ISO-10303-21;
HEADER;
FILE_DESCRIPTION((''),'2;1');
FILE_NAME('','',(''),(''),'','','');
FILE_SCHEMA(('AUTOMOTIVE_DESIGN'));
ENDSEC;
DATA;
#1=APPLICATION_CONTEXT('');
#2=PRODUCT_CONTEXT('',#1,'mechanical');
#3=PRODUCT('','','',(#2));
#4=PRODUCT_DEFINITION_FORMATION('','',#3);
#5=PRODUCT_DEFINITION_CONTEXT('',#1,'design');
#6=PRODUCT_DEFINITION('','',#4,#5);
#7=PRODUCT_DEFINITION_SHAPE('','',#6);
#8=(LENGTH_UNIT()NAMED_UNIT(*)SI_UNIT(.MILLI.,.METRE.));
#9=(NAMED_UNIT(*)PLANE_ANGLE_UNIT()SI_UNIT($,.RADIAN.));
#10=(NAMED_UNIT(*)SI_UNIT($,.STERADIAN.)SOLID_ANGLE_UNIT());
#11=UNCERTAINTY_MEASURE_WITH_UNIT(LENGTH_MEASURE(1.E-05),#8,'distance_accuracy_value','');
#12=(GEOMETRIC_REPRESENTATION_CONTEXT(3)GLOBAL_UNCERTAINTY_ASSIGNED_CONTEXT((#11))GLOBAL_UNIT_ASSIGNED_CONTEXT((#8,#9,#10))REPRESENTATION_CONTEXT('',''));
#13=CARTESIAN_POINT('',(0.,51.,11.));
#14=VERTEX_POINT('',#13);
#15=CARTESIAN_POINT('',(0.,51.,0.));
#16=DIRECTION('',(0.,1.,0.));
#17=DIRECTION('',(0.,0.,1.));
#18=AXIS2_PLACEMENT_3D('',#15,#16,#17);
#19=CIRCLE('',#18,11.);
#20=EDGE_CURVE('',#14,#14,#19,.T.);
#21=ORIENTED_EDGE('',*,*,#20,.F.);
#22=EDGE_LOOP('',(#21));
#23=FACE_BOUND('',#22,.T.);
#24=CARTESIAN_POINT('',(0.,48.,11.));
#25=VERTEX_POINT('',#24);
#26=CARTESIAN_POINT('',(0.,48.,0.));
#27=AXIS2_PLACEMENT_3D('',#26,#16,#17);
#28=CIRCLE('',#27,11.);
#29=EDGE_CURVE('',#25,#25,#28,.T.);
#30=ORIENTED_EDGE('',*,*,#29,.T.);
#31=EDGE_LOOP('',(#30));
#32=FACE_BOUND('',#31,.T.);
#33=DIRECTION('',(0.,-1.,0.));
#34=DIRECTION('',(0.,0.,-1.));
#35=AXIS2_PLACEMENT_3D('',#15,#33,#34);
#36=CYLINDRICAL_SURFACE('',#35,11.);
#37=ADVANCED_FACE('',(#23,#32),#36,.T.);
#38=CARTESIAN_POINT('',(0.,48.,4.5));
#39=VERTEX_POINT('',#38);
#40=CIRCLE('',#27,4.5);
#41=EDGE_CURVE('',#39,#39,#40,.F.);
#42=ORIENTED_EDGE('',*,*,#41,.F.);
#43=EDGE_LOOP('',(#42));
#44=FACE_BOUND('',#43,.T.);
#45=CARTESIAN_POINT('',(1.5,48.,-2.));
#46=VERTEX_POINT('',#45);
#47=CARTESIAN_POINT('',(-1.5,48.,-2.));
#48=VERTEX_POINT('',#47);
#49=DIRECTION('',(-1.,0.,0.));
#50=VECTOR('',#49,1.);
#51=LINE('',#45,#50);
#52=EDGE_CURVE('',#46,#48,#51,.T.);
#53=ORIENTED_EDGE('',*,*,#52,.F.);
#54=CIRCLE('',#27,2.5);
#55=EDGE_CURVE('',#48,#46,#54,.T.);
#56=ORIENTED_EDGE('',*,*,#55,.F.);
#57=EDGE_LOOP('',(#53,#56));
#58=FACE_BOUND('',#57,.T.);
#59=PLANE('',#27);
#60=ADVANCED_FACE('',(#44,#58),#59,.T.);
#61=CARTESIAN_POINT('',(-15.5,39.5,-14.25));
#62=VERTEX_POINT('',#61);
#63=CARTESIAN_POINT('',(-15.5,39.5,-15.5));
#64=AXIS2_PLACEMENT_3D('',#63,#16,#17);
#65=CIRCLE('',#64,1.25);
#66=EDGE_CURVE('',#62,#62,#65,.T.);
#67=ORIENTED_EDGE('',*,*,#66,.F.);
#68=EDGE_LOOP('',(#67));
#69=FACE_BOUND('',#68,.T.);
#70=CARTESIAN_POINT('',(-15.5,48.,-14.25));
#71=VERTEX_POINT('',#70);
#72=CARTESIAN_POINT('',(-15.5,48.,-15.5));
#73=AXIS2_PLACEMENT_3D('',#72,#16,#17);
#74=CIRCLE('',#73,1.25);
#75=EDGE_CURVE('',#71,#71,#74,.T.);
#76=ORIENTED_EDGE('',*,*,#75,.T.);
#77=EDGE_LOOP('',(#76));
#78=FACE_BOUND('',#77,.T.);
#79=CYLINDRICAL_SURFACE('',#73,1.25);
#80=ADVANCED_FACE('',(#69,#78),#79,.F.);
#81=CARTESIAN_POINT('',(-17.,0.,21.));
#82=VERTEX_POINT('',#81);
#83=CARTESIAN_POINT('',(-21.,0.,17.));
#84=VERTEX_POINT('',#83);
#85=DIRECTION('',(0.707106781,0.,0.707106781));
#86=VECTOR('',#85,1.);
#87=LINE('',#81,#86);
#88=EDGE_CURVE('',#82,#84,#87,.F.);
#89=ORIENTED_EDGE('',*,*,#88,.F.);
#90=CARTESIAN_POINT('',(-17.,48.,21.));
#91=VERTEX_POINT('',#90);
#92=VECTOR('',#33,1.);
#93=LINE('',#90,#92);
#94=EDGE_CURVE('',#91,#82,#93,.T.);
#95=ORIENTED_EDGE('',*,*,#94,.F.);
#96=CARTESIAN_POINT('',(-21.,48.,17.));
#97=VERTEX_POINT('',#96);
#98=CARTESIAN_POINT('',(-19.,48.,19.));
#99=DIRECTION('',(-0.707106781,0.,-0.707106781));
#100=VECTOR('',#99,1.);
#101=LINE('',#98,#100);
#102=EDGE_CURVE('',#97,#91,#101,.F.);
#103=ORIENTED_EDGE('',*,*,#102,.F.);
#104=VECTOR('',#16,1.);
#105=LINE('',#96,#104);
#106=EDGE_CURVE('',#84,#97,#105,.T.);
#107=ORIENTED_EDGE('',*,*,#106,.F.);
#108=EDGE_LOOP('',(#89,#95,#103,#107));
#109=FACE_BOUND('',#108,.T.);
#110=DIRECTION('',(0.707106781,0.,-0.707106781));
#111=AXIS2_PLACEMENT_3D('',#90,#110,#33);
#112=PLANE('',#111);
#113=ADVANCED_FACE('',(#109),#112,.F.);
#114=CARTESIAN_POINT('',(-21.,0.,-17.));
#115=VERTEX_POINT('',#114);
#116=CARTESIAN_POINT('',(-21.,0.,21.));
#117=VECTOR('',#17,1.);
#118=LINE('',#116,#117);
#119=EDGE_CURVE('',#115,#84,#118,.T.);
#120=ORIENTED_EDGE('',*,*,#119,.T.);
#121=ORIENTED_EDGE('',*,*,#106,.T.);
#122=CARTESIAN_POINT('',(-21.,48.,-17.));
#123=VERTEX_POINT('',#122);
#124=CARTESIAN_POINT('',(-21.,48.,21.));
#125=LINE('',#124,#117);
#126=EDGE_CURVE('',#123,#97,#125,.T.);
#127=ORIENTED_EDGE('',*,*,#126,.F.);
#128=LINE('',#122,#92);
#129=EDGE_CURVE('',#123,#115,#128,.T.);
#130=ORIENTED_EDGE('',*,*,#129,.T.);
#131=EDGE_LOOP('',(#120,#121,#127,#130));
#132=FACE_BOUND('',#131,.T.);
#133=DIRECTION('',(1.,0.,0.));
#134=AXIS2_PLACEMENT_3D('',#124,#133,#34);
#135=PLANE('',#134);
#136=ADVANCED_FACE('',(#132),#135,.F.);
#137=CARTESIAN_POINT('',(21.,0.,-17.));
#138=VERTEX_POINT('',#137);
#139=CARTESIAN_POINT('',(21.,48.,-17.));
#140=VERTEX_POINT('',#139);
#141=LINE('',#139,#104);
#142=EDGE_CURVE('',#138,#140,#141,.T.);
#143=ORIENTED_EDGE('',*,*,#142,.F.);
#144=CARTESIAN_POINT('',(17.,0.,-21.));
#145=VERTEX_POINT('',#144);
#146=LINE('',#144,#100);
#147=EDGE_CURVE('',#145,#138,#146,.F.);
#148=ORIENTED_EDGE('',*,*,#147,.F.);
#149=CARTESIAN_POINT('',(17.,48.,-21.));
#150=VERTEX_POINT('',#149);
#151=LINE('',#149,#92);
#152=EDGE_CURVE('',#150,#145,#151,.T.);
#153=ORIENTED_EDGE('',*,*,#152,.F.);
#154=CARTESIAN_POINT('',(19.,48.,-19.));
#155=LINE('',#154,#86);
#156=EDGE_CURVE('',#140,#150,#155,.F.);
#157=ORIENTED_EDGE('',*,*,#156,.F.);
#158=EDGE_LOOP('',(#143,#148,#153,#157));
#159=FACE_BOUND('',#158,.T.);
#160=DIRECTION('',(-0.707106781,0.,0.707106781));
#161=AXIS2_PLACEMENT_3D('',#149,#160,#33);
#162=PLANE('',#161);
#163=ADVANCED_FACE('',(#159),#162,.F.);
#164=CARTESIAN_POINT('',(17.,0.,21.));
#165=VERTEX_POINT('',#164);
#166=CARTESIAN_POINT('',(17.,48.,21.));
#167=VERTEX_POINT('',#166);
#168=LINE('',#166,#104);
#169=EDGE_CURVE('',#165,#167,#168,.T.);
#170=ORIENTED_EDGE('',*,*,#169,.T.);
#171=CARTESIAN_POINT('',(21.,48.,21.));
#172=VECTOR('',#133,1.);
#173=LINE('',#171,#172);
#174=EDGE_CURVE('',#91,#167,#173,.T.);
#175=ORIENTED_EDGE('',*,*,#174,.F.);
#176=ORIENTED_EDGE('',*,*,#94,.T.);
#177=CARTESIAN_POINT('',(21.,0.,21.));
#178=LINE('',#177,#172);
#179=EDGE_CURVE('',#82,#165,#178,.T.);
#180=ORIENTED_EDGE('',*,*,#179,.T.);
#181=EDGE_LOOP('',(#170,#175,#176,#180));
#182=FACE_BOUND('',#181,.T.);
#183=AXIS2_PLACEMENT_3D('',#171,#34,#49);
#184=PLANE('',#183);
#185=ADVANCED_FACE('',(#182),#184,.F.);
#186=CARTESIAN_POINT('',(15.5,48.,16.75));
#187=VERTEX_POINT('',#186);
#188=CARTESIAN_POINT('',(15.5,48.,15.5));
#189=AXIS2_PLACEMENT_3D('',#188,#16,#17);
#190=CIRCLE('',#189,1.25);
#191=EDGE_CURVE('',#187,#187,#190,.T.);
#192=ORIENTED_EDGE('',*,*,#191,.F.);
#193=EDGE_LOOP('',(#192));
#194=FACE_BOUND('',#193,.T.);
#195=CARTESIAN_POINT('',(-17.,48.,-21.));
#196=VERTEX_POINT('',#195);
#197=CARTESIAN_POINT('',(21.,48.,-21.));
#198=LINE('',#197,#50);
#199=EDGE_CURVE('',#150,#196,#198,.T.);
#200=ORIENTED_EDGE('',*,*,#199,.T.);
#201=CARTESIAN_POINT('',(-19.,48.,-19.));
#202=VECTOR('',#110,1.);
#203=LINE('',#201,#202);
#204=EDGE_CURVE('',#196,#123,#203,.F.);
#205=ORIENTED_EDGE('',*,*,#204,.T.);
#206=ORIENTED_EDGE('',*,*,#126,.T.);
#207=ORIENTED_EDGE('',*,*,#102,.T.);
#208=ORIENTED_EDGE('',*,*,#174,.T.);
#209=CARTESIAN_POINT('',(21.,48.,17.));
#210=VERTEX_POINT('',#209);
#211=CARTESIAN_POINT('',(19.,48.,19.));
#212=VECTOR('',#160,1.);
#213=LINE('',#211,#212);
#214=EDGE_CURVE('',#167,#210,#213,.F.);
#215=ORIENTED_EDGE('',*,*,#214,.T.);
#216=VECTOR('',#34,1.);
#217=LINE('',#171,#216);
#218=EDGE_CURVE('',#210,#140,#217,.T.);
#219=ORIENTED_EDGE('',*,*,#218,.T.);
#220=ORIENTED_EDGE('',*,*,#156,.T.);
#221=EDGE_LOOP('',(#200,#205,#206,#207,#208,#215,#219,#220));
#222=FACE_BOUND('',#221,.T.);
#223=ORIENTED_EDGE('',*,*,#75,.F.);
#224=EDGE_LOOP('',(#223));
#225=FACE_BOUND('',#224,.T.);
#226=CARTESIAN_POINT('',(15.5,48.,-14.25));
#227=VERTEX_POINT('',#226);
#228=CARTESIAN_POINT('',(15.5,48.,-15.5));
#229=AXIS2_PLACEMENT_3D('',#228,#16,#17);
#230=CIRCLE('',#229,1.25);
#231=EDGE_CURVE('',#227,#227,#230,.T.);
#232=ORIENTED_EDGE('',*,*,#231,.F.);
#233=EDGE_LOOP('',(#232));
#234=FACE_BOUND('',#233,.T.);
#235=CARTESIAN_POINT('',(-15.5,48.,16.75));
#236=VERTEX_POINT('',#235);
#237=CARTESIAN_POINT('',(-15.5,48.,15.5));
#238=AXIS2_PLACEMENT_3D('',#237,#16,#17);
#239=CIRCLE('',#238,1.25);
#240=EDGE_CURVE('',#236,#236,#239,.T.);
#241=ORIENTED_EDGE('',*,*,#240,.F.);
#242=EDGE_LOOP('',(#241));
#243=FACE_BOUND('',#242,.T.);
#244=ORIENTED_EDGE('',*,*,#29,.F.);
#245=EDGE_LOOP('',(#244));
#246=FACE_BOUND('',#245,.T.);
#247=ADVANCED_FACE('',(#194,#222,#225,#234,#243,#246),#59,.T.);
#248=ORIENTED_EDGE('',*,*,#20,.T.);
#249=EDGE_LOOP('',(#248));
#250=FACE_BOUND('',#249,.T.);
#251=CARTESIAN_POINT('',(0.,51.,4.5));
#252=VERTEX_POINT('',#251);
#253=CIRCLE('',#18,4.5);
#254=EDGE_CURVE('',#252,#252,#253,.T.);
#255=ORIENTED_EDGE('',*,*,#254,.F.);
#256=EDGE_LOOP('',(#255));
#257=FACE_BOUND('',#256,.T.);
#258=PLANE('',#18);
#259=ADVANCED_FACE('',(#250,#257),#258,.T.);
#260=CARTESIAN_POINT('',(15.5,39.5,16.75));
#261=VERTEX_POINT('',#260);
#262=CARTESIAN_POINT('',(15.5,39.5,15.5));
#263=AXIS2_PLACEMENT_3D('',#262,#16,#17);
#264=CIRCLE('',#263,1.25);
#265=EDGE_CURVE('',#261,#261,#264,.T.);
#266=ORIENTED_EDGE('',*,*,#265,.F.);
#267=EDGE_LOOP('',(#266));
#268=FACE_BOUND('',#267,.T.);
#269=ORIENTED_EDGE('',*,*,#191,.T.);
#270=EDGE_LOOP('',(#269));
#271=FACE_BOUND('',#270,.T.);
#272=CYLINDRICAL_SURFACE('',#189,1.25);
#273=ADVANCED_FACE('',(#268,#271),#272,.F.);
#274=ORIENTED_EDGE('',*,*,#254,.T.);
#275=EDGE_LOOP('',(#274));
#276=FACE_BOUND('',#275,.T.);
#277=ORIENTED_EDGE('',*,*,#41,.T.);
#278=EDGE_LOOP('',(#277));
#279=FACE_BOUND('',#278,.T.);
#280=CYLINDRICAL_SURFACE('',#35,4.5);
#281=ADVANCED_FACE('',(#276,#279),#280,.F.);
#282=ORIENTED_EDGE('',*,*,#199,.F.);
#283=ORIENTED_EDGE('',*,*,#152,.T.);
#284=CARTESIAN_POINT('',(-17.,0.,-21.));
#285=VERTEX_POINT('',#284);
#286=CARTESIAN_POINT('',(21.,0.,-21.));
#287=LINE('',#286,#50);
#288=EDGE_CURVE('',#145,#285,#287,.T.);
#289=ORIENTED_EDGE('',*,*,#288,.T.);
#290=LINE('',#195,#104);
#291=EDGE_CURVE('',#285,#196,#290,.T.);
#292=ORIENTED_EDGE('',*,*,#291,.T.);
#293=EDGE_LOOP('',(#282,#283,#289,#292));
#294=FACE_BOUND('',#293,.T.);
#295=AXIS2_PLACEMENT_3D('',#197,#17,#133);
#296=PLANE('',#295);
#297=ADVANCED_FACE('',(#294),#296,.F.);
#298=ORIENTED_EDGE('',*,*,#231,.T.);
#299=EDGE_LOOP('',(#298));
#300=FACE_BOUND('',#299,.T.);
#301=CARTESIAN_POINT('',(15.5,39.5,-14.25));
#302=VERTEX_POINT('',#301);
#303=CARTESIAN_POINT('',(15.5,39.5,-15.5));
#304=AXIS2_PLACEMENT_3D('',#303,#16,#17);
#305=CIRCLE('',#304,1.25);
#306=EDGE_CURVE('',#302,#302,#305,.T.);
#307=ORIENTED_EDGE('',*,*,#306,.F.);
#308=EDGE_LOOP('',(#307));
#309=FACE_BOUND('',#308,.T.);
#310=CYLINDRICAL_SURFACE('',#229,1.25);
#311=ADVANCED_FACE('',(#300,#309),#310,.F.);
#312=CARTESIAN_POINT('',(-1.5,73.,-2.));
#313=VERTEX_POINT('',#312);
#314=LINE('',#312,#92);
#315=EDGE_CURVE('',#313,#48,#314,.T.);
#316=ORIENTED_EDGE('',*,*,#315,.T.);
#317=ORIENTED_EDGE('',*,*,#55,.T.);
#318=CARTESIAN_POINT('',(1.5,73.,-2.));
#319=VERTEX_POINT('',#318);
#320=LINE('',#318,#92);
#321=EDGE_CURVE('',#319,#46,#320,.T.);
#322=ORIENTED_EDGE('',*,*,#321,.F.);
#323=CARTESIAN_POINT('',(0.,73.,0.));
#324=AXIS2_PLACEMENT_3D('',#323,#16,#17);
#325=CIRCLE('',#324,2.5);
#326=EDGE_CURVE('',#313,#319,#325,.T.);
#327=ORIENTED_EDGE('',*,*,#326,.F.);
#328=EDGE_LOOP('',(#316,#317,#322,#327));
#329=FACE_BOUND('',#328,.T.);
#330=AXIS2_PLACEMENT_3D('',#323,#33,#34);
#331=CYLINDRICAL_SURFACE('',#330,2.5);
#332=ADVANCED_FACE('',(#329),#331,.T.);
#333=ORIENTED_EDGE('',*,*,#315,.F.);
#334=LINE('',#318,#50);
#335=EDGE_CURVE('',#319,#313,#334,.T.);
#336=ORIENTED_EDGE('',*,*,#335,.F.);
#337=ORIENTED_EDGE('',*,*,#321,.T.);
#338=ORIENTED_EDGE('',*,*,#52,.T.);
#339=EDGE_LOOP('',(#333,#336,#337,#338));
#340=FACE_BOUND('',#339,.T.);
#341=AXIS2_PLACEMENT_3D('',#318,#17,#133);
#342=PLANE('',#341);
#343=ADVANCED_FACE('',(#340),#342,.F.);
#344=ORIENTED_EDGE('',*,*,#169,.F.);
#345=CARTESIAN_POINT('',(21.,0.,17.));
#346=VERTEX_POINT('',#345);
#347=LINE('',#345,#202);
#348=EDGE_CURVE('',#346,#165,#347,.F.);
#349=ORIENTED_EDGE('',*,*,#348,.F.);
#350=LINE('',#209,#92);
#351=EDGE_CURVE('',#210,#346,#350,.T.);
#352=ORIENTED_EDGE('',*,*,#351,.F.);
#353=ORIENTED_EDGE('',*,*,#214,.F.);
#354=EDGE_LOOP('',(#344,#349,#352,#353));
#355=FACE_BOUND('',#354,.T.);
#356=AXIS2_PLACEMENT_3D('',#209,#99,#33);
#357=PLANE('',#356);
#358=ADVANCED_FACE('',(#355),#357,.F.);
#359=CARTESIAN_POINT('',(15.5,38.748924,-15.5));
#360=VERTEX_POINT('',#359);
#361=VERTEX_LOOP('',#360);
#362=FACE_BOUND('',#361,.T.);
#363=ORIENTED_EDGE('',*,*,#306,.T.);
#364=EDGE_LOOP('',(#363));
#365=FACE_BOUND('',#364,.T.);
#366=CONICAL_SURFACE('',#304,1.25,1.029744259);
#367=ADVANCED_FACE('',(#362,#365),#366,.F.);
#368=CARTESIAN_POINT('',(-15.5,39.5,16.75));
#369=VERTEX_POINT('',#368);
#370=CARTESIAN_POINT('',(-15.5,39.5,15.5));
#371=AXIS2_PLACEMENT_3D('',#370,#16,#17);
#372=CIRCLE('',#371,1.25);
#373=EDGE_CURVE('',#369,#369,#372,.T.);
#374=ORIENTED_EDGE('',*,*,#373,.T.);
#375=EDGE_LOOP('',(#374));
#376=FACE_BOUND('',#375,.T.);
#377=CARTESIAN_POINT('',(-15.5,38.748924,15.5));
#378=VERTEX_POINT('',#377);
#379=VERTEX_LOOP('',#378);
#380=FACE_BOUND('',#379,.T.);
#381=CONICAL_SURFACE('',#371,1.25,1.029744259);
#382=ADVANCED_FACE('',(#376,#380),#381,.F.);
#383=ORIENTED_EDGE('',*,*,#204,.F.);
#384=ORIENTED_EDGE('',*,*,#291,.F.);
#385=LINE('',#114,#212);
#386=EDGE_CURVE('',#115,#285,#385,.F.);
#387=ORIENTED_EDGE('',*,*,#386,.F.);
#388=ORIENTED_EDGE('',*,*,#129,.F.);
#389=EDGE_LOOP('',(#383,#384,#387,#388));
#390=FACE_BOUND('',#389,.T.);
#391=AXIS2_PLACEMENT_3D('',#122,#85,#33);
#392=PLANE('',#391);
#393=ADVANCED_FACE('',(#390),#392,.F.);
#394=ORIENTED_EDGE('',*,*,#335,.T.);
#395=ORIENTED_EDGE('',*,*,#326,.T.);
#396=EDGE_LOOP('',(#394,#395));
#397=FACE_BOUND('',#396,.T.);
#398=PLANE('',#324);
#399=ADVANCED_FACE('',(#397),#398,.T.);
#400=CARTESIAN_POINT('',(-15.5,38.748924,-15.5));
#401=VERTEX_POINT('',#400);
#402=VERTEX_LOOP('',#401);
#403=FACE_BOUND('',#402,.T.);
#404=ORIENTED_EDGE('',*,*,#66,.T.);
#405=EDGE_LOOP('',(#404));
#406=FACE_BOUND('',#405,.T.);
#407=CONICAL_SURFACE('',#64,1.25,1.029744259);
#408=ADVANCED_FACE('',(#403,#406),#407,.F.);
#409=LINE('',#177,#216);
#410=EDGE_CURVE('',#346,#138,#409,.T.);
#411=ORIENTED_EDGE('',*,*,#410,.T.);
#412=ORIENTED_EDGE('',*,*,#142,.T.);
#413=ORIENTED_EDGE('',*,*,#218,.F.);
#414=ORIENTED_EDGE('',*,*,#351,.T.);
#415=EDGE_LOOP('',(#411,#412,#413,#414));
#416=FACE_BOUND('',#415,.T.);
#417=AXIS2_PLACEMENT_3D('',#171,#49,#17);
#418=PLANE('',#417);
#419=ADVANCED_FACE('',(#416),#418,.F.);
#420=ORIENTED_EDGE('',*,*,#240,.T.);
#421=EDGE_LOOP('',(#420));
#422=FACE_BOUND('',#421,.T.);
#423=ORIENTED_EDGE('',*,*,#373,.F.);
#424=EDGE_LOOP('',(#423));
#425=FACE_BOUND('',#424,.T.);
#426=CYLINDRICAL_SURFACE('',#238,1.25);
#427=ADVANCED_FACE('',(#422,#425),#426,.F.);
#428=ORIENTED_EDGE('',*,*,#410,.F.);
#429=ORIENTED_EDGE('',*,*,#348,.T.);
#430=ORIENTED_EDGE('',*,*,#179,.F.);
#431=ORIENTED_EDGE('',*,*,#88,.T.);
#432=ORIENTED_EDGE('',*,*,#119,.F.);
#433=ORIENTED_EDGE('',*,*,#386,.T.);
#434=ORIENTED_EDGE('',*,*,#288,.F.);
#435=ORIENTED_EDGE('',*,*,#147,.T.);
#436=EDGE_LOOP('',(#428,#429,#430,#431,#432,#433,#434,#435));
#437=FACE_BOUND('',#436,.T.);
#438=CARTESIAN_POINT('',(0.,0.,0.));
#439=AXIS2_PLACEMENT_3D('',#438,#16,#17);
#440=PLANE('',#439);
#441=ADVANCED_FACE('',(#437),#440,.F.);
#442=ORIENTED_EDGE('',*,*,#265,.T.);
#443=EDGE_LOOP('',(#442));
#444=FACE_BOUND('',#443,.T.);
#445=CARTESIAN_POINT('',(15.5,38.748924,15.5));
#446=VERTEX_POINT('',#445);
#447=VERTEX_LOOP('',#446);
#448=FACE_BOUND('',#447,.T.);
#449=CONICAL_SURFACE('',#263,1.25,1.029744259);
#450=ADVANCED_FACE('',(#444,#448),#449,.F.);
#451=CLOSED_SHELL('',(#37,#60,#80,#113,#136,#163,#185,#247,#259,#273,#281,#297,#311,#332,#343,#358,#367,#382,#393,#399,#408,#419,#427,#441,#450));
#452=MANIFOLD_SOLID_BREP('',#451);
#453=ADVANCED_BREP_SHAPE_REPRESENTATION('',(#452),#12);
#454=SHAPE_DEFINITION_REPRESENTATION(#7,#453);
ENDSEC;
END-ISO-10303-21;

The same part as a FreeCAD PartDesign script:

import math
import FreeCAD as App
import Part
import Sketcher
from FreeCAD import Vector
Q = App.Units.Quantity


def edges_at(feature, points):
    """Names of the edges that pass closest to the given points."""
    edges = feature.Shape.Edges
    near = lambda p: min(range(len(edges)), key=lambda i: edges[i].distToShape(Part.Vertex(*p))[0])
    return sorted({f"Edge{near(p) + 1}" for p in points})


def add_polygon(sketch, points):
    """Adds a closed chain of lines whose ends are joined by coincident constraints."""
    first, n = sketch.GeometryCount, len(points)
    for a, b in zip(points, points[1:] + points[:1]):
        sketch.addGeometry(Part.LineSegment(App.Vector(*a, 0), App.Vector(*b, 0)), False)
    for i in range(n):
        sketch.addConstraint(Sketcher.Constraint("Coincident", first + i, 2, first + (i + 1) % n, 1))

doc = App.newDocument("Part")
body = doc.addObject("PartDesign::Body", "Body")

sketch1 = body.newObject("Sketcher::SketchObject", "Sketch")
sketch1.AttachmentSupport = (doc.getObject("XZ_Plane"), [""])
sketch1.MapMode = "FlatFace"
add_polygon(sketch1, [(-21, -21), (-21, 21), (21, 21), (21, -21)])
sketch1.addConstraint([
    Sketcher.Constraint("Vertical", 0),
    Sketcher.Constraint("Horizontal", 1),
    Sketcher.Constraint("Vertical", 2),
    Sketcher.Constraint("Horizontal", 3),
    Sketcher.Constraint("Symmetric", 0, 2, 2, 2, -1, 1),
    Sketcher.Constraint("Equal", 3, 0),
    Sketcher.Constraint("DistanceX", 1, 1, 1, 2, Q("42 mm")),
])
pad1 = body.newObject("PartDesign::Pad", "Pad")
pad1.Profile = sketch1
pad1.Length = 48
pad1.Reversed = True

sketch2 = body.newObject("Sketcher::SketchObject", "Sketch001")
sketch2.AttachmentSupport = (doc.getObject("XZ_Plane"), [""])
sketch2.MapMode = "FlatFace"
sketch2.AttachmentOffset = App.Placement(Vector(0, 0, -48), App.Rotation())
sketch2.addGeometry([
    Part.Circle(Vector(0, 0, 0), Vector(0, 0, 1), 11),
    Part.Circle(Vector(0, 0, 0), Vector(0, 0, 1), 4.5),
], False)
sketch2.addConstraint([
    Sketcher.Constraint("Coincident", 0, 3, -1, 1),
    Sketcher.Constraint("Coincident", 1, 3, -1, 1),
    Sketcher.Constraint("Diameter", 0, Q("22 mm")),
    Sketcher.Constraint("Diameter", 1, Q("9 mm")),
])
pad2 = body.newObject("PartDesign::Pad", "Pad001")
pad2.Profile = sketch2
pad2.Length = 3
pad2.Reversed = True

sketch3 = body.newObject("Sketcher::SketchObject", "Sketch002")
sketch3.AttachmentSupport = (doc.getObject("XZ_Plane"), [""])
sketch3.MapMode = "FlatFace"
sketch3.AttachmentOffset = App.Placement(Vector(0, 0, -48), App.Rotation())
sketch3.addGeometry([
    Part.LineSegment(Vector(1.5, -2, 0), Vector(-1.5, -2, 0)),
    Part.ArcOfCircle(Part.Circle(Vector(0, 0, 0), Vector(0, 0, 1), 2.5), math.radians(-53.130102), math.radians(233.130102)),
], False)
sketch3.addConstraint([
    Sketcher.Constraint("Coincident", 0, 1, 1, 1),
    Sketcher.Constraint("Coincident", 1, 2, 0, 2),
    Sketcher.Constraint("Horizontal", 0),
    Sketcher.Constraint("Coincident", 1, 3, -1, 1),
    Sketcher.Constraint("Radius", 1, Q("2.5 mm")),
    Sketcher.Constraint("DistanceX", 0, 2, 0, 1, Q("3 mm")),
])
pad3 = body.newObject("PartDesign::Pad", "Pad002")
pad3.Profile = sketch3
pad3.Length = 25
pad3.Reversed = True

sketch4 = body.newObject("Sketcher::SketchObject", "Sketch003")
sketch4.AttachmentSupport = (doc.getObject("XZ_Plane"), [""])
sketch4.MapMode = "FlatFace"
sketch4.AttachmentOffset = App.Placement(Vector(0, 0, -48), App.Rotation())
sketch4.addGeometry([
    Part.Circle(Vector(-15.5, -15.5, 0), Vector(0, 0, 1), 1.25),
    Part.Circle(Vector(-15.5, 15.5, 0), Vector(0, 0, 1), 1.25),
    Part.Circle(Vector(15.5, 15.5, 0), Vector(0, 0, 1), 1.25),
    Part.Circle(Vector(15.5, -15.5, 0), Vector(0, 0, 1), 1.25),
], False)
sketch4.addConstraint([
    Sketcher.Constraint("Equal", 0, 1),
    Sketcher.Constraint("Equal", 1, 2),
    Sketcher.Constraint("Equal", 2, 3),
    Sketcher.Constraint("Symmetric", 0, 3, 2, 3, -1, 1),
    Sketcher.Constraint("Symmetric", 1, 3, 3, 3, -1, 1),
    Sketcher.Constraint("Symmetric", 1, 3, 2, 3, -2),
    Sketcher.Constraint("Diameter", 0, Q("2.5 mm")),
    Sketcher.Constraint("DistanceY", 0, 3, 1, 3, Q("31 mm")),
    Sketcher.Constraint("DistanceX", 1, 3, 2, 3, Q("31 mm")),
])
doc.recompute()
hole = body.newObject("PartDesign::Hole", "Hole")
hole.Profile = sketch4
hole.ThreadType = "None"
hole.Diameter = 2.5
hole.DepthType = "Dimension"
hole.Depth = 8.5
hole.DrillPoint = "Angled"
hole.DrillPointAngle = 118
hole.Reversed = True
doc.recompute()

chamfer = body.newObject("PartDesign::Chamfer", "Chamfer")
chamfer.Base = (hole, edges_at(hole, [
    (-21, 24, -21),
    (21, 24, -21),
    (21, 24, 21),
    (-21, 24, 21),
]))
chamfer.Size = 4

doc.recompute()
